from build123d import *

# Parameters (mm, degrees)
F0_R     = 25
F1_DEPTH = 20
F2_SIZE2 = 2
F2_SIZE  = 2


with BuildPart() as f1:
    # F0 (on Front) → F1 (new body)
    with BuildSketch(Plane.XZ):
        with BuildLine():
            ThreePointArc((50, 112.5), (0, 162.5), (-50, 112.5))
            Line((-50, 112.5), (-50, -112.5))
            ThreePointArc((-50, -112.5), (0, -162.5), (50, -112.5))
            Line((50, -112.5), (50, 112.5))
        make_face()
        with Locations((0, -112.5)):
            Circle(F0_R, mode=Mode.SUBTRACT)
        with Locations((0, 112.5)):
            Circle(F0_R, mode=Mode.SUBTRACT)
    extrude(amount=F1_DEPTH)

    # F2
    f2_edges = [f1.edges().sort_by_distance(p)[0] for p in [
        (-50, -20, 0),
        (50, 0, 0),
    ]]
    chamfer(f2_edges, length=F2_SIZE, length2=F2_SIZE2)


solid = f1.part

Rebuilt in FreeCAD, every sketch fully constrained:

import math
import FreeCAD as App
import Part
import Sketcher
Q = App.Units.Quantity


def edges_at(feature, points):
    """Names of the edges that pass closest to the given points."""
    edges = feature.Shape.Edges
    near = lambda p: min(range(len(edges)), key=lambda i: edges[i].distToShape(Part.Vertex(*p))[0])
    return sorted({f"Edge{near(p) + 1}" for p in points})

doc = App.newDocument("Part")
body = doc.addObject("PartDesign::Body", "Body")

# Sketch on XZ plane
sketch1 = body.newObject("Sketcher::SketchObject", "Sketch")
sketch1.AttachmentSupport = (doc.getObject("XZ_Plane"), [""])
sketch1.MapMode = "FlatFace"
sketch1.addGeometry(Part.ArcOfCircle(Part.Circle(App.Vector(0, 112, 0), App.Vector(0, 0, 1), 50), math.radians(0), math.radians(180)), False)
sketch1.addGeometry(Part.LineSegment(App.Vector(-50, 112, 0), App.Vector(-50, -112, 0)), False)
sketch1.addGeometry(Part.ArcOfCircle(Part.Circle(App.Vector(0, -112, 0), App.Vector(0, 0, 1), 50), math.radians(180), math.radians(360)), False)
sketch1.addGeometry(Part.LineSegment(App.Vector(50, -112, 0), App.Vector(50, 112, 0)), False)
sketch1.addGeometry(Part.Circle(App.Vector(0, -112, 0), App.Vector(0, 0, 1), 25), False)
sketch1.addGeometry(Part.Circle(App.Vector(0, 112, 0), App.Vector(0, 0, 1), 25), False)
sketch1.addConstraint(Sketcher.Constraint("Tangent", 0, 2, 1, 1))
sketch1.addConstraint(Sketcher.Constraint("Tangent", 1, 2, 2, 1))
sketch1.addConstraint(Sketcher.Constraint("Tangent", 2, 2, 3, 1))
sketch1.addConstraint(Sketcher.Constraint("Tangent", 3, 2, 0, 1))
sketch1.addConstraint(Sketcher.Constraint("Vertical", 1))
sketch1.addConstraint(Sketcher.Constraint("Vertical", 3))
sketch1.addConstraint(Sketcher.Constraint("Coincident", 4, 3, 2, 3))
sketch1.addConstraint(Sketcher.Constraint("Coincident", 5, 3, 0, 3))
sketch1.addConstraint(Sketcher.Constraint("Equal", 4, 5))
sketch1.addConstraint(Sketcher.Constraint("Symmetric", 0, 3, 2, 3, -1, 1))
sketch1.addConstraint(Sketcher.Constraint("Diameter", 4, Q("50 mm")))
sketch1.addConstraint(Sketcher.Constraint("Radius", 0, Q("50 mm")))
sketch1.addConstraint(Sketcher.Constraint("DistanceY", 1, 2, 1, 1, Q("225 mm")))
pad1 = body.newObject("PartDesign::Pad", "Pad")
pad1.Profile = sketch1
pad1.Length = 20
doc.recompute()

chamfer = body.newObject("PartDesign::Chamfer", "Chamfer")
chamfer.Base = (pad1, edges_at(pad1, [(-50, -20, 0), (50, 0, 0)]))
chamfer.ChamferType = "Two distances"
chamfer.Size = 2
chamfer.Size2 = 2

doc.recompute()
